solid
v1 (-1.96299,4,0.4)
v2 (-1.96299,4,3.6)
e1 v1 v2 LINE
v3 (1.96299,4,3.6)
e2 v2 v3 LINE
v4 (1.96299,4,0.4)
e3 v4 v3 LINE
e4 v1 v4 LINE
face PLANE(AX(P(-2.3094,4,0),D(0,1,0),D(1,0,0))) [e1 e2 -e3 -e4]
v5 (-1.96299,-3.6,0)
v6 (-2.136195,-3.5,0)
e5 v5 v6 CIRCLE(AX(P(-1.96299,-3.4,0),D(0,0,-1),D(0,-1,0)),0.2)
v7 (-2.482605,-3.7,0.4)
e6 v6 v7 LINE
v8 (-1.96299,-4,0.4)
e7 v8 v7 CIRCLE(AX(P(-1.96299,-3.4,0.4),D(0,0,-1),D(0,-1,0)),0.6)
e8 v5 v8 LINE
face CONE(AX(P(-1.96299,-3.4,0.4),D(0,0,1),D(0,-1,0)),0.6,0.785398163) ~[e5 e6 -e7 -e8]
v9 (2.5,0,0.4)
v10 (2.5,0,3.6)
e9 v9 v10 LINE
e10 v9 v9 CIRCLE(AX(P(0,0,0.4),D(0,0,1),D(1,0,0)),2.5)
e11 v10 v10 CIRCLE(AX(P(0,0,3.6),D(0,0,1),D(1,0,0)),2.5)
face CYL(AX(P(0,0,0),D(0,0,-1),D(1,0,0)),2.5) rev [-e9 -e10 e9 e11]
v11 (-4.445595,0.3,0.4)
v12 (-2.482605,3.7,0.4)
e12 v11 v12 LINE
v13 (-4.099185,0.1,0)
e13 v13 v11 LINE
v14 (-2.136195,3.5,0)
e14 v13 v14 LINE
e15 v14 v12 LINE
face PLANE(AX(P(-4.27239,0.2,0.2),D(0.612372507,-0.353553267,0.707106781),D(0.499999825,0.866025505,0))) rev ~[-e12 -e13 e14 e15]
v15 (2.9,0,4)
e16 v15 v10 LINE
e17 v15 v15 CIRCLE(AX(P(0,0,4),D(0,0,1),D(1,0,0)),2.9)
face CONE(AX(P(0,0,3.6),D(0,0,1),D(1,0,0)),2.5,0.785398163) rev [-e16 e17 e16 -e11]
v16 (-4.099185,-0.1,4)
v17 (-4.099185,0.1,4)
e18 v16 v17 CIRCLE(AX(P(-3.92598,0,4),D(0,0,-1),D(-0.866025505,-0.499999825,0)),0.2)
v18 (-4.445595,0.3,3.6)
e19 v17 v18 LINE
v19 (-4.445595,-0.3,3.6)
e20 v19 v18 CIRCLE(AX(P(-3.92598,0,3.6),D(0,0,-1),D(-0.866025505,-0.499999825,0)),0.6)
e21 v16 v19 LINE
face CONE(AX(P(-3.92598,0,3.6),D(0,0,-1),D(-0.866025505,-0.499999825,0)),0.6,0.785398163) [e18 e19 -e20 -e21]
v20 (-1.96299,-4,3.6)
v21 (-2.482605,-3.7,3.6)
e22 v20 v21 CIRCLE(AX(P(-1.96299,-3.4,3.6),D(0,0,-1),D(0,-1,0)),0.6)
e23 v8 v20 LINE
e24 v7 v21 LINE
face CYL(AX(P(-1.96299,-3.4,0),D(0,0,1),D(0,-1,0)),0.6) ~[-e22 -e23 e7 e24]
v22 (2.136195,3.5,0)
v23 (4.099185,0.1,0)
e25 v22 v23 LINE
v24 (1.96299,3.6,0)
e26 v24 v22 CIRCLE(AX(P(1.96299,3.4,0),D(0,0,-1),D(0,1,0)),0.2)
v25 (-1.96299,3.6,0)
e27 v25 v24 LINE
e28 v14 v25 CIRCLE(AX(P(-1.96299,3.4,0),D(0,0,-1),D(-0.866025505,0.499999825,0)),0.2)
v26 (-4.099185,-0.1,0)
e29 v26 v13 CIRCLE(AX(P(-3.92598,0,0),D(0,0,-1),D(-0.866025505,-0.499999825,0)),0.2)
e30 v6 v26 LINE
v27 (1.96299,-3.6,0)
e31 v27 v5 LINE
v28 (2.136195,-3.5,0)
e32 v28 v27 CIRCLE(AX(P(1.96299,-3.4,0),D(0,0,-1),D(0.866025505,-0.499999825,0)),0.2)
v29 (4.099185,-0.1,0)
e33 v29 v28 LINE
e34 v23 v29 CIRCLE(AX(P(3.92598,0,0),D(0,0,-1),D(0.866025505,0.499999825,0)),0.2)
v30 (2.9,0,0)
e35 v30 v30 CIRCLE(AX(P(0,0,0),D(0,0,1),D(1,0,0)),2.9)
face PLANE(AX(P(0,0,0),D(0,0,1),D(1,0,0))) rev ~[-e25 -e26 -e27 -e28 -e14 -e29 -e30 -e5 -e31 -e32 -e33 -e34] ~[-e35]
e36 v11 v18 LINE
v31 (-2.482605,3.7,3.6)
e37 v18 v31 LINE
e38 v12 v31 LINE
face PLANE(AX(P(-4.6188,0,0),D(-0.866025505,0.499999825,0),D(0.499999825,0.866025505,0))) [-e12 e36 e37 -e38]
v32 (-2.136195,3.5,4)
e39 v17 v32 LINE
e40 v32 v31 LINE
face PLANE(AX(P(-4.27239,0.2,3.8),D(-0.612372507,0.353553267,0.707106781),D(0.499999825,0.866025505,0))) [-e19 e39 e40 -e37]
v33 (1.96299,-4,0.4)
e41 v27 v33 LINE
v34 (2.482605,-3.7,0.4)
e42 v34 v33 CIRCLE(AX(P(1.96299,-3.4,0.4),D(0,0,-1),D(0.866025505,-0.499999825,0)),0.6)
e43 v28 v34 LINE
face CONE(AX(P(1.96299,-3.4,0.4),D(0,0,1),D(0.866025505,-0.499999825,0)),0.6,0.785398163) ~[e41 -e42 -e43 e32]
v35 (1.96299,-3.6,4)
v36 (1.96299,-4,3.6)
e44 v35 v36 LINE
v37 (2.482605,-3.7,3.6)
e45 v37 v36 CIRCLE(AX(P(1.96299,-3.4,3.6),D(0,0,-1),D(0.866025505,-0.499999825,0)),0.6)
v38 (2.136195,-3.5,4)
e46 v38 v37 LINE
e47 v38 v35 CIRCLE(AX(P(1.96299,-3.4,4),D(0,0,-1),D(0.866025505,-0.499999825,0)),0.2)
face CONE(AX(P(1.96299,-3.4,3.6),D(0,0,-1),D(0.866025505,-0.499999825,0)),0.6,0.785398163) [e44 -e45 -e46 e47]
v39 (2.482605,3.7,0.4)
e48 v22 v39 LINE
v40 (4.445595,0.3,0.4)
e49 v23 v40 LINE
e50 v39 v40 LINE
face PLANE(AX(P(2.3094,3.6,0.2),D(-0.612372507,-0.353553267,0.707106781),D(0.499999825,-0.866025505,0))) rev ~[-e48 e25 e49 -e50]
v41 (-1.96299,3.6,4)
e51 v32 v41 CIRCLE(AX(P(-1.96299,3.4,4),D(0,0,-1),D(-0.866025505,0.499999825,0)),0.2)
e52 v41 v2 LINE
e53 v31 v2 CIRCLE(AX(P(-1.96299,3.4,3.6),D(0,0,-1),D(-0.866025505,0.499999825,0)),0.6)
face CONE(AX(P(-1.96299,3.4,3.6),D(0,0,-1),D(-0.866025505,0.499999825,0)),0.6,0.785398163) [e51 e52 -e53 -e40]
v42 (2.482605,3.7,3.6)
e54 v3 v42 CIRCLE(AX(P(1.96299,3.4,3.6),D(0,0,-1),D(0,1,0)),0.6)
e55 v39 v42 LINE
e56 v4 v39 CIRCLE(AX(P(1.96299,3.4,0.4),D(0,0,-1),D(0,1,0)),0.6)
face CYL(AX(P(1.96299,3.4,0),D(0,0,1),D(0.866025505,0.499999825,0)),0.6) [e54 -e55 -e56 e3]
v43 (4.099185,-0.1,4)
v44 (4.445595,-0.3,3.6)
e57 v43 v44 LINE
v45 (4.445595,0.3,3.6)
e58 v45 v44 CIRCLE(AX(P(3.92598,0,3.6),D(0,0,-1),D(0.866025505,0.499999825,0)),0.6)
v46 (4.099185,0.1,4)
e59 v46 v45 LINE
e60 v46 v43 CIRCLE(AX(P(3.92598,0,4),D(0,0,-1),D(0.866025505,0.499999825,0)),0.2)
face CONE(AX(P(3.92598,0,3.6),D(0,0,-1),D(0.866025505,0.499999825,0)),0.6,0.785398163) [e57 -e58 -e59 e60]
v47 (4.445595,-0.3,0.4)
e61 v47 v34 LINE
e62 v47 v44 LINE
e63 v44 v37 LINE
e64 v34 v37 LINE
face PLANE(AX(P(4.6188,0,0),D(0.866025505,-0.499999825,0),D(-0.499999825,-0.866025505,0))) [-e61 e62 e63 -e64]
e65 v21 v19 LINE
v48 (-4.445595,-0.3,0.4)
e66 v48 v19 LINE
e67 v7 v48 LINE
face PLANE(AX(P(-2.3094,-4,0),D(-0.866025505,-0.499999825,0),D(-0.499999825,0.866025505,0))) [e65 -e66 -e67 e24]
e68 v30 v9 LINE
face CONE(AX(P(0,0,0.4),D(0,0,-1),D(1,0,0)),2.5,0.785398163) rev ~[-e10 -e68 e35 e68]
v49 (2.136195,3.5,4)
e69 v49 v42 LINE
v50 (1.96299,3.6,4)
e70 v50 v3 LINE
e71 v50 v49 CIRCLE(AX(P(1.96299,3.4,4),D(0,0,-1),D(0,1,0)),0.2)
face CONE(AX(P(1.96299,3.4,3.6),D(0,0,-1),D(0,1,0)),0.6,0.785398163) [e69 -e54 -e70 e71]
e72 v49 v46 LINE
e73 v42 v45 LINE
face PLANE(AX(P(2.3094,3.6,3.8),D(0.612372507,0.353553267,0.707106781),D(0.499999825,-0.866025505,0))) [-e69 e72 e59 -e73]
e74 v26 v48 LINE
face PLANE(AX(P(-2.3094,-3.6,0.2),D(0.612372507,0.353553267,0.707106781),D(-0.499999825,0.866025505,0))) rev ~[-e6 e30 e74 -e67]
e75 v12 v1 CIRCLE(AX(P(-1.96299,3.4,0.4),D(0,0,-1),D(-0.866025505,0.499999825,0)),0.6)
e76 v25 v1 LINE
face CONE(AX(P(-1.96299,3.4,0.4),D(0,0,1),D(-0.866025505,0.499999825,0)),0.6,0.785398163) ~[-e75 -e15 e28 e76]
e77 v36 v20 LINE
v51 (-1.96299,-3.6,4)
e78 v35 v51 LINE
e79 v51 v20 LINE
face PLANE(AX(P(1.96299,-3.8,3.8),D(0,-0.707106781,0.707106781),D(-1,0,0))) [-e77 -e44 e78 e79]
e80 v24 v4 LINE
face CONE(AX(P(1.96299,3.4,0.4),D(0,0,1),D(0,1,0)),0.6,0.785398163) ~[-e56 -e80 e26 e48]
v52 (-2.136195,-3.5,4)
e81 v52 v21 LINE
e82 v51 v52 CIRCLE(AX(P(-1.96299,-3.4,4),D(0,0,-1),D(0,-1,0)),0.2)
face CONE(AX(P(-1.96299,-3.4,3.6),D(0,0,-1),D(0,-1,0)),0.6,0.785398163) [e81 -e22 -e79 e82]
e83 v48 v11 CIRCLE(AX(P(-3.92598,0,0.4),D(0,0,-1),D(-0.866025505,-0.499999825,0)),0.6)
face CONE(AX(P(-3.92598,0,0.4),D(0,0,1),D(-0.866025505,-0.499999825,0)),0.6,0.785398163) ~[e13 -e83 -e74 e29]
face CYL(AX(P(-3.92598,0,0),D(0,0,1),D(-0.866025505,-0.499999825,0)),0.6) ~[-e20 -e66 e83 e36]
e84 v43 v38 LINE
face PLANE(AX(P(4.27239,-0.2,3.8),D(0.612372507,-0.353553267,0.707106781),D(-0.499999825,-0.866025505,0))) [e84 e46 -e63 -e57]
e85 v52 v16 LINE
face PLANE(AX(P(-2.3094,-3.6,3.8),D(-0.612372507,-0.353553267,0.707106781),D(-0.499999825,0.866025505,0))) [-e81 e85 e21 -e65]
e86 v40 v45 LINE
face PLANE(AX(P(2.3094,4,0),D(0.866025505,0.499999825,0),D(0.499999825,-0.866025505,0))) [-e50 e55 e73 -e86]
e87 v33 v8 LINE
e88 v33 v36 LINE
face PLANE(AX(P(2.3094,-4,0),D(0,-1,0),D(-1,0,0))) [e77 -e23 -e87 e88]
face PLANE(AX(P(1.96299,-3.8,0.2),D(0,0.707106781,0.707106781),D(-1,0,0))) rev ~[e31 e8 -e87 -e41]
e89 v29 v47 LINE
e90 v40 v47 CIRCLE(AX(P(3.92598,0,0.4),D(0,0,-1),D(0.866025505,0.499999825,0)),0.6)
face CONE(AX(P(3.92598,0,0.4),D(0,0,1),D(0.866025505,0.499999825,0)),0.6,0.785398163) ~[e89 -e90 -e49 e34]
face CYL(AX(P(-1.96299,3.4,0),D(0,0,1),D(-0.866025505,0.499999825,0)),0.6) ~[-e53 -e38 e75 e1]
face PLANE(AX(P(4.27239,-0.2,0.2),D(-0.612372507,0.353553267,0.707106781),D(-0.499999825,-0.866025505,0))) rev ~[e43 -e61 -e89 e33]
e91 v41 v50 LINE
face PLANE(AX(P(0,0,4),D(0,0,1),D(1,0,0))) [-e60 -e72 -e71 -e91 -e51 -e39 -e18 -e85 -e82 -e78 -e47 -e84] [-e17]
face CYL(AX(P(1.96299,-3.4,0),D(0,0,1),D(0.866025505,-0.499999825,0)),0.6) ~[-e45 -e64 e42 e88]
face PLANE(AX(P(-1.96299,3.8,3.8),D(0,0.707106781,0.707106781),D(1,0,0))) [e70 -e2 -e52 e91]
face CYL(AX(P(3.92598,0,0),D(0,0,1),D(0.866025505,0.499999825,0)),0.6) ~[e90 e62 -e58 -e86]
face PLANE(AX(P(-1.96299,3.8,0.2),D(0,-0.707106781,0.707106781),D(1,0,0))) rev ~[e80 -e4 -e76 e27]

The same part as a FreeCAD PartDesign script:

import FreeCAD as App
import Part
import Sketcher
from FreeCAD import Vector
Q = App.Units.Quantity


def edges_at(feature, points):
    """Names of the edges that pass closest to the given points."""
    edges = feature.Shape.Edges
    near = lambda p: min(range(len(edges)), key=lambda i: edges[i].distToShape(Part.Vertex(*p))[0])
    return sorted({f"Edge{near(p) + 1}" for p in points})

doc = App.newDocument("Part")
params = doc.addObject("Spreadsheet::Sheet", "Params")
for row, (alias, value) in enumerate([
    ("sketch1_diameter", "5 mm"),
    ("pad1_length", "4 mm"),
    ("fillet_radius", "0.6 mm"),
    ("chamfer_size", "0.4 mm"),
], start=1):
    params.set(f"A{row}", alias)
    params.set(f"B{row}", "=" + value)
    params.setAlias(f"B{row}", alias)

body = doc.addObject("PartDesign::Body", "Body")

sketch1 = body.newObject("Sketcher::SketchObject", "Sketch")
sketch1.AttachmentSupport = (doc.getObject("XY_Plane"), [""])
sketch1.MapMode = "FlatFace"
sketch1.addGeometry(Part.LineSegment(Vector(4.6188, 0, 0), Vector(2.3094, 4, 0)), False)
sketch1.addGeometry(Part.LineSegment(Vector(2.3094, 4, 0), Vector(-2.3094, 4, 0)), False)
sketch1.addGeometry(Part.LineSegment(Vector(-2.3094, 4, 0), Vector(-4.6188, 0, 0)), False)
sketch1.addGeometry(Part.LineSegment(Vector(-4.6188, 0, 0), Vector(-2.3094, -4, 0)), False)
sketch1.addGeometry(Part.LineSegment(Vector(-2.3094, -4, 0), Vector(2.3094, -4, 0)), False)
sketch1.addGeometry(Part.LineSegment(Vector(2.3094, -4, 0), Vector(4.6188, 0, 0)), False)
sketch1.addGeometry(Part.Circle(Vector(0, 0, 0), Vector(0, 0, 1), 2.5), False)
sketch1.addConstraint(Sketcher.Constraint("Coincident", 0, 2, 1, 1))
sketch1.addConstraint(Sketcher.Constraint("Coincident", 1, 2, 2, 1))
sketch1.addConstraint(Sketcher.Constraint("Coincident", 2, 2, 3, 1))
sketch1.addConstraint(Sketcher.Constraint("Coincident", 3, 2, 4, 1))
sketch1.addConstraint(Sketcher.Constraint("Coincident", 4, 2, 5, 1))
sketch1.addConstraint(Sketcher.Constraint("Coincident", 5, 2, 0, 1))
sketch1.addConstraint(Sketcher.Constraint("Horizontal", 1))
sketch1.addConstraint(Sketcher.Constraint("Horizontal", 4))
sketch1.addConstraint(Sketcher.Constraint("Coincident", 6, 3, -1, 1))
sketch1.addConstraint(Sketcher.Constraint("Symmetric", 0, 2, 3, 2, -1, 1))
sketch1.addConstraint(Sketcher.Constraint("Symmetric", 2, 2, 5, 2, -1, 1))
sketch1.addConstraint(Sketcher.Constraint("PointOnObject", 2, 2, -1))
sketch1.addConstraint(Sketcher.Constraint("Parallel", 2, 5))
sketch1.addConstraint(Sketcher.Constraint("Vertical", 1, 2, 3, 2))
sketch1.addConstraint(Sketcher.Constraint("Diameter", 6, Q("5 mm")))
sketch1.addConstraint(Sketcher.Constraint("DistanceY", 3, 2, 1, 2, Q("8 mm")))
sketch1.addConstraint(Sketcher.Constraint("Angle", 0, Q("120 deg")))
sketch1.addConstraint(Sketcher.Constraint("DistanceX", 1, 2, 1, 1, Q("4.6188 mm")))
sketch1.setExpression("Constraints[14]", "Params.sketch1_diameter")
pad1 = body.newObject("PartDesign::Pad", "Pad")
pad1.Profile = sketch1
pad1.setExpression("Length", "Params.pad1_length")
doc.recompute()

fillet = body.newObject("PartDesign::Fillet", "Fillet")
fillet.Base = (pad1, edges_at(pad1, [
    (-4.619, 0, 2),
    (-2.309, -4, 2),
    (2.309, -4, 2),
    (4.619, 0, 2),
    (2.309, 4, 2),
    (-2.309, 4, 2),
]))
fillet.setExpression("Radius", "Params.fillet_radius")
doc.recompute()

chamfer = body.newObject("PartDesign::Chamfer", "Chamfer")
chamfer.Base = (fillet, edges_at(fillet, [
    (0, 4, 0),
    (-2.263, 3.92, 0),
    (-3.464, 2, 0),
    (-4.526, 0, 0),
    (-3.464, -2, 0),
    (-2.263, -3.92, 0),
    (0, -4, 0),
    (2.263, -3.92, 0),
    (3.464, -2, 0),
    (4.526, 0, 0),
    (3.464, 2, 0),
    (2.263, 3.92, 0),
    (0, 4, 4),
    (-2.263, 3.92, 4),
    (-3.464, 2, 4),
    (-4.526, 0, 4),
    (-3.464, -2, 4),
    (-2.263, -3.92, 4),
    (0, -4, 4),
    (2.263, -3.92, 4),
    (3.464, -2, 4),
    (4.526, 0, 4),
    (3.464, 2, 4),
    (2.263, 3.92, 4),
    (-2.5, 0, 4),
    (-2.5, 0, 0),
]))
chamfer.setExpression("Size", "Params.chamfer_size")

doc.recompute()
